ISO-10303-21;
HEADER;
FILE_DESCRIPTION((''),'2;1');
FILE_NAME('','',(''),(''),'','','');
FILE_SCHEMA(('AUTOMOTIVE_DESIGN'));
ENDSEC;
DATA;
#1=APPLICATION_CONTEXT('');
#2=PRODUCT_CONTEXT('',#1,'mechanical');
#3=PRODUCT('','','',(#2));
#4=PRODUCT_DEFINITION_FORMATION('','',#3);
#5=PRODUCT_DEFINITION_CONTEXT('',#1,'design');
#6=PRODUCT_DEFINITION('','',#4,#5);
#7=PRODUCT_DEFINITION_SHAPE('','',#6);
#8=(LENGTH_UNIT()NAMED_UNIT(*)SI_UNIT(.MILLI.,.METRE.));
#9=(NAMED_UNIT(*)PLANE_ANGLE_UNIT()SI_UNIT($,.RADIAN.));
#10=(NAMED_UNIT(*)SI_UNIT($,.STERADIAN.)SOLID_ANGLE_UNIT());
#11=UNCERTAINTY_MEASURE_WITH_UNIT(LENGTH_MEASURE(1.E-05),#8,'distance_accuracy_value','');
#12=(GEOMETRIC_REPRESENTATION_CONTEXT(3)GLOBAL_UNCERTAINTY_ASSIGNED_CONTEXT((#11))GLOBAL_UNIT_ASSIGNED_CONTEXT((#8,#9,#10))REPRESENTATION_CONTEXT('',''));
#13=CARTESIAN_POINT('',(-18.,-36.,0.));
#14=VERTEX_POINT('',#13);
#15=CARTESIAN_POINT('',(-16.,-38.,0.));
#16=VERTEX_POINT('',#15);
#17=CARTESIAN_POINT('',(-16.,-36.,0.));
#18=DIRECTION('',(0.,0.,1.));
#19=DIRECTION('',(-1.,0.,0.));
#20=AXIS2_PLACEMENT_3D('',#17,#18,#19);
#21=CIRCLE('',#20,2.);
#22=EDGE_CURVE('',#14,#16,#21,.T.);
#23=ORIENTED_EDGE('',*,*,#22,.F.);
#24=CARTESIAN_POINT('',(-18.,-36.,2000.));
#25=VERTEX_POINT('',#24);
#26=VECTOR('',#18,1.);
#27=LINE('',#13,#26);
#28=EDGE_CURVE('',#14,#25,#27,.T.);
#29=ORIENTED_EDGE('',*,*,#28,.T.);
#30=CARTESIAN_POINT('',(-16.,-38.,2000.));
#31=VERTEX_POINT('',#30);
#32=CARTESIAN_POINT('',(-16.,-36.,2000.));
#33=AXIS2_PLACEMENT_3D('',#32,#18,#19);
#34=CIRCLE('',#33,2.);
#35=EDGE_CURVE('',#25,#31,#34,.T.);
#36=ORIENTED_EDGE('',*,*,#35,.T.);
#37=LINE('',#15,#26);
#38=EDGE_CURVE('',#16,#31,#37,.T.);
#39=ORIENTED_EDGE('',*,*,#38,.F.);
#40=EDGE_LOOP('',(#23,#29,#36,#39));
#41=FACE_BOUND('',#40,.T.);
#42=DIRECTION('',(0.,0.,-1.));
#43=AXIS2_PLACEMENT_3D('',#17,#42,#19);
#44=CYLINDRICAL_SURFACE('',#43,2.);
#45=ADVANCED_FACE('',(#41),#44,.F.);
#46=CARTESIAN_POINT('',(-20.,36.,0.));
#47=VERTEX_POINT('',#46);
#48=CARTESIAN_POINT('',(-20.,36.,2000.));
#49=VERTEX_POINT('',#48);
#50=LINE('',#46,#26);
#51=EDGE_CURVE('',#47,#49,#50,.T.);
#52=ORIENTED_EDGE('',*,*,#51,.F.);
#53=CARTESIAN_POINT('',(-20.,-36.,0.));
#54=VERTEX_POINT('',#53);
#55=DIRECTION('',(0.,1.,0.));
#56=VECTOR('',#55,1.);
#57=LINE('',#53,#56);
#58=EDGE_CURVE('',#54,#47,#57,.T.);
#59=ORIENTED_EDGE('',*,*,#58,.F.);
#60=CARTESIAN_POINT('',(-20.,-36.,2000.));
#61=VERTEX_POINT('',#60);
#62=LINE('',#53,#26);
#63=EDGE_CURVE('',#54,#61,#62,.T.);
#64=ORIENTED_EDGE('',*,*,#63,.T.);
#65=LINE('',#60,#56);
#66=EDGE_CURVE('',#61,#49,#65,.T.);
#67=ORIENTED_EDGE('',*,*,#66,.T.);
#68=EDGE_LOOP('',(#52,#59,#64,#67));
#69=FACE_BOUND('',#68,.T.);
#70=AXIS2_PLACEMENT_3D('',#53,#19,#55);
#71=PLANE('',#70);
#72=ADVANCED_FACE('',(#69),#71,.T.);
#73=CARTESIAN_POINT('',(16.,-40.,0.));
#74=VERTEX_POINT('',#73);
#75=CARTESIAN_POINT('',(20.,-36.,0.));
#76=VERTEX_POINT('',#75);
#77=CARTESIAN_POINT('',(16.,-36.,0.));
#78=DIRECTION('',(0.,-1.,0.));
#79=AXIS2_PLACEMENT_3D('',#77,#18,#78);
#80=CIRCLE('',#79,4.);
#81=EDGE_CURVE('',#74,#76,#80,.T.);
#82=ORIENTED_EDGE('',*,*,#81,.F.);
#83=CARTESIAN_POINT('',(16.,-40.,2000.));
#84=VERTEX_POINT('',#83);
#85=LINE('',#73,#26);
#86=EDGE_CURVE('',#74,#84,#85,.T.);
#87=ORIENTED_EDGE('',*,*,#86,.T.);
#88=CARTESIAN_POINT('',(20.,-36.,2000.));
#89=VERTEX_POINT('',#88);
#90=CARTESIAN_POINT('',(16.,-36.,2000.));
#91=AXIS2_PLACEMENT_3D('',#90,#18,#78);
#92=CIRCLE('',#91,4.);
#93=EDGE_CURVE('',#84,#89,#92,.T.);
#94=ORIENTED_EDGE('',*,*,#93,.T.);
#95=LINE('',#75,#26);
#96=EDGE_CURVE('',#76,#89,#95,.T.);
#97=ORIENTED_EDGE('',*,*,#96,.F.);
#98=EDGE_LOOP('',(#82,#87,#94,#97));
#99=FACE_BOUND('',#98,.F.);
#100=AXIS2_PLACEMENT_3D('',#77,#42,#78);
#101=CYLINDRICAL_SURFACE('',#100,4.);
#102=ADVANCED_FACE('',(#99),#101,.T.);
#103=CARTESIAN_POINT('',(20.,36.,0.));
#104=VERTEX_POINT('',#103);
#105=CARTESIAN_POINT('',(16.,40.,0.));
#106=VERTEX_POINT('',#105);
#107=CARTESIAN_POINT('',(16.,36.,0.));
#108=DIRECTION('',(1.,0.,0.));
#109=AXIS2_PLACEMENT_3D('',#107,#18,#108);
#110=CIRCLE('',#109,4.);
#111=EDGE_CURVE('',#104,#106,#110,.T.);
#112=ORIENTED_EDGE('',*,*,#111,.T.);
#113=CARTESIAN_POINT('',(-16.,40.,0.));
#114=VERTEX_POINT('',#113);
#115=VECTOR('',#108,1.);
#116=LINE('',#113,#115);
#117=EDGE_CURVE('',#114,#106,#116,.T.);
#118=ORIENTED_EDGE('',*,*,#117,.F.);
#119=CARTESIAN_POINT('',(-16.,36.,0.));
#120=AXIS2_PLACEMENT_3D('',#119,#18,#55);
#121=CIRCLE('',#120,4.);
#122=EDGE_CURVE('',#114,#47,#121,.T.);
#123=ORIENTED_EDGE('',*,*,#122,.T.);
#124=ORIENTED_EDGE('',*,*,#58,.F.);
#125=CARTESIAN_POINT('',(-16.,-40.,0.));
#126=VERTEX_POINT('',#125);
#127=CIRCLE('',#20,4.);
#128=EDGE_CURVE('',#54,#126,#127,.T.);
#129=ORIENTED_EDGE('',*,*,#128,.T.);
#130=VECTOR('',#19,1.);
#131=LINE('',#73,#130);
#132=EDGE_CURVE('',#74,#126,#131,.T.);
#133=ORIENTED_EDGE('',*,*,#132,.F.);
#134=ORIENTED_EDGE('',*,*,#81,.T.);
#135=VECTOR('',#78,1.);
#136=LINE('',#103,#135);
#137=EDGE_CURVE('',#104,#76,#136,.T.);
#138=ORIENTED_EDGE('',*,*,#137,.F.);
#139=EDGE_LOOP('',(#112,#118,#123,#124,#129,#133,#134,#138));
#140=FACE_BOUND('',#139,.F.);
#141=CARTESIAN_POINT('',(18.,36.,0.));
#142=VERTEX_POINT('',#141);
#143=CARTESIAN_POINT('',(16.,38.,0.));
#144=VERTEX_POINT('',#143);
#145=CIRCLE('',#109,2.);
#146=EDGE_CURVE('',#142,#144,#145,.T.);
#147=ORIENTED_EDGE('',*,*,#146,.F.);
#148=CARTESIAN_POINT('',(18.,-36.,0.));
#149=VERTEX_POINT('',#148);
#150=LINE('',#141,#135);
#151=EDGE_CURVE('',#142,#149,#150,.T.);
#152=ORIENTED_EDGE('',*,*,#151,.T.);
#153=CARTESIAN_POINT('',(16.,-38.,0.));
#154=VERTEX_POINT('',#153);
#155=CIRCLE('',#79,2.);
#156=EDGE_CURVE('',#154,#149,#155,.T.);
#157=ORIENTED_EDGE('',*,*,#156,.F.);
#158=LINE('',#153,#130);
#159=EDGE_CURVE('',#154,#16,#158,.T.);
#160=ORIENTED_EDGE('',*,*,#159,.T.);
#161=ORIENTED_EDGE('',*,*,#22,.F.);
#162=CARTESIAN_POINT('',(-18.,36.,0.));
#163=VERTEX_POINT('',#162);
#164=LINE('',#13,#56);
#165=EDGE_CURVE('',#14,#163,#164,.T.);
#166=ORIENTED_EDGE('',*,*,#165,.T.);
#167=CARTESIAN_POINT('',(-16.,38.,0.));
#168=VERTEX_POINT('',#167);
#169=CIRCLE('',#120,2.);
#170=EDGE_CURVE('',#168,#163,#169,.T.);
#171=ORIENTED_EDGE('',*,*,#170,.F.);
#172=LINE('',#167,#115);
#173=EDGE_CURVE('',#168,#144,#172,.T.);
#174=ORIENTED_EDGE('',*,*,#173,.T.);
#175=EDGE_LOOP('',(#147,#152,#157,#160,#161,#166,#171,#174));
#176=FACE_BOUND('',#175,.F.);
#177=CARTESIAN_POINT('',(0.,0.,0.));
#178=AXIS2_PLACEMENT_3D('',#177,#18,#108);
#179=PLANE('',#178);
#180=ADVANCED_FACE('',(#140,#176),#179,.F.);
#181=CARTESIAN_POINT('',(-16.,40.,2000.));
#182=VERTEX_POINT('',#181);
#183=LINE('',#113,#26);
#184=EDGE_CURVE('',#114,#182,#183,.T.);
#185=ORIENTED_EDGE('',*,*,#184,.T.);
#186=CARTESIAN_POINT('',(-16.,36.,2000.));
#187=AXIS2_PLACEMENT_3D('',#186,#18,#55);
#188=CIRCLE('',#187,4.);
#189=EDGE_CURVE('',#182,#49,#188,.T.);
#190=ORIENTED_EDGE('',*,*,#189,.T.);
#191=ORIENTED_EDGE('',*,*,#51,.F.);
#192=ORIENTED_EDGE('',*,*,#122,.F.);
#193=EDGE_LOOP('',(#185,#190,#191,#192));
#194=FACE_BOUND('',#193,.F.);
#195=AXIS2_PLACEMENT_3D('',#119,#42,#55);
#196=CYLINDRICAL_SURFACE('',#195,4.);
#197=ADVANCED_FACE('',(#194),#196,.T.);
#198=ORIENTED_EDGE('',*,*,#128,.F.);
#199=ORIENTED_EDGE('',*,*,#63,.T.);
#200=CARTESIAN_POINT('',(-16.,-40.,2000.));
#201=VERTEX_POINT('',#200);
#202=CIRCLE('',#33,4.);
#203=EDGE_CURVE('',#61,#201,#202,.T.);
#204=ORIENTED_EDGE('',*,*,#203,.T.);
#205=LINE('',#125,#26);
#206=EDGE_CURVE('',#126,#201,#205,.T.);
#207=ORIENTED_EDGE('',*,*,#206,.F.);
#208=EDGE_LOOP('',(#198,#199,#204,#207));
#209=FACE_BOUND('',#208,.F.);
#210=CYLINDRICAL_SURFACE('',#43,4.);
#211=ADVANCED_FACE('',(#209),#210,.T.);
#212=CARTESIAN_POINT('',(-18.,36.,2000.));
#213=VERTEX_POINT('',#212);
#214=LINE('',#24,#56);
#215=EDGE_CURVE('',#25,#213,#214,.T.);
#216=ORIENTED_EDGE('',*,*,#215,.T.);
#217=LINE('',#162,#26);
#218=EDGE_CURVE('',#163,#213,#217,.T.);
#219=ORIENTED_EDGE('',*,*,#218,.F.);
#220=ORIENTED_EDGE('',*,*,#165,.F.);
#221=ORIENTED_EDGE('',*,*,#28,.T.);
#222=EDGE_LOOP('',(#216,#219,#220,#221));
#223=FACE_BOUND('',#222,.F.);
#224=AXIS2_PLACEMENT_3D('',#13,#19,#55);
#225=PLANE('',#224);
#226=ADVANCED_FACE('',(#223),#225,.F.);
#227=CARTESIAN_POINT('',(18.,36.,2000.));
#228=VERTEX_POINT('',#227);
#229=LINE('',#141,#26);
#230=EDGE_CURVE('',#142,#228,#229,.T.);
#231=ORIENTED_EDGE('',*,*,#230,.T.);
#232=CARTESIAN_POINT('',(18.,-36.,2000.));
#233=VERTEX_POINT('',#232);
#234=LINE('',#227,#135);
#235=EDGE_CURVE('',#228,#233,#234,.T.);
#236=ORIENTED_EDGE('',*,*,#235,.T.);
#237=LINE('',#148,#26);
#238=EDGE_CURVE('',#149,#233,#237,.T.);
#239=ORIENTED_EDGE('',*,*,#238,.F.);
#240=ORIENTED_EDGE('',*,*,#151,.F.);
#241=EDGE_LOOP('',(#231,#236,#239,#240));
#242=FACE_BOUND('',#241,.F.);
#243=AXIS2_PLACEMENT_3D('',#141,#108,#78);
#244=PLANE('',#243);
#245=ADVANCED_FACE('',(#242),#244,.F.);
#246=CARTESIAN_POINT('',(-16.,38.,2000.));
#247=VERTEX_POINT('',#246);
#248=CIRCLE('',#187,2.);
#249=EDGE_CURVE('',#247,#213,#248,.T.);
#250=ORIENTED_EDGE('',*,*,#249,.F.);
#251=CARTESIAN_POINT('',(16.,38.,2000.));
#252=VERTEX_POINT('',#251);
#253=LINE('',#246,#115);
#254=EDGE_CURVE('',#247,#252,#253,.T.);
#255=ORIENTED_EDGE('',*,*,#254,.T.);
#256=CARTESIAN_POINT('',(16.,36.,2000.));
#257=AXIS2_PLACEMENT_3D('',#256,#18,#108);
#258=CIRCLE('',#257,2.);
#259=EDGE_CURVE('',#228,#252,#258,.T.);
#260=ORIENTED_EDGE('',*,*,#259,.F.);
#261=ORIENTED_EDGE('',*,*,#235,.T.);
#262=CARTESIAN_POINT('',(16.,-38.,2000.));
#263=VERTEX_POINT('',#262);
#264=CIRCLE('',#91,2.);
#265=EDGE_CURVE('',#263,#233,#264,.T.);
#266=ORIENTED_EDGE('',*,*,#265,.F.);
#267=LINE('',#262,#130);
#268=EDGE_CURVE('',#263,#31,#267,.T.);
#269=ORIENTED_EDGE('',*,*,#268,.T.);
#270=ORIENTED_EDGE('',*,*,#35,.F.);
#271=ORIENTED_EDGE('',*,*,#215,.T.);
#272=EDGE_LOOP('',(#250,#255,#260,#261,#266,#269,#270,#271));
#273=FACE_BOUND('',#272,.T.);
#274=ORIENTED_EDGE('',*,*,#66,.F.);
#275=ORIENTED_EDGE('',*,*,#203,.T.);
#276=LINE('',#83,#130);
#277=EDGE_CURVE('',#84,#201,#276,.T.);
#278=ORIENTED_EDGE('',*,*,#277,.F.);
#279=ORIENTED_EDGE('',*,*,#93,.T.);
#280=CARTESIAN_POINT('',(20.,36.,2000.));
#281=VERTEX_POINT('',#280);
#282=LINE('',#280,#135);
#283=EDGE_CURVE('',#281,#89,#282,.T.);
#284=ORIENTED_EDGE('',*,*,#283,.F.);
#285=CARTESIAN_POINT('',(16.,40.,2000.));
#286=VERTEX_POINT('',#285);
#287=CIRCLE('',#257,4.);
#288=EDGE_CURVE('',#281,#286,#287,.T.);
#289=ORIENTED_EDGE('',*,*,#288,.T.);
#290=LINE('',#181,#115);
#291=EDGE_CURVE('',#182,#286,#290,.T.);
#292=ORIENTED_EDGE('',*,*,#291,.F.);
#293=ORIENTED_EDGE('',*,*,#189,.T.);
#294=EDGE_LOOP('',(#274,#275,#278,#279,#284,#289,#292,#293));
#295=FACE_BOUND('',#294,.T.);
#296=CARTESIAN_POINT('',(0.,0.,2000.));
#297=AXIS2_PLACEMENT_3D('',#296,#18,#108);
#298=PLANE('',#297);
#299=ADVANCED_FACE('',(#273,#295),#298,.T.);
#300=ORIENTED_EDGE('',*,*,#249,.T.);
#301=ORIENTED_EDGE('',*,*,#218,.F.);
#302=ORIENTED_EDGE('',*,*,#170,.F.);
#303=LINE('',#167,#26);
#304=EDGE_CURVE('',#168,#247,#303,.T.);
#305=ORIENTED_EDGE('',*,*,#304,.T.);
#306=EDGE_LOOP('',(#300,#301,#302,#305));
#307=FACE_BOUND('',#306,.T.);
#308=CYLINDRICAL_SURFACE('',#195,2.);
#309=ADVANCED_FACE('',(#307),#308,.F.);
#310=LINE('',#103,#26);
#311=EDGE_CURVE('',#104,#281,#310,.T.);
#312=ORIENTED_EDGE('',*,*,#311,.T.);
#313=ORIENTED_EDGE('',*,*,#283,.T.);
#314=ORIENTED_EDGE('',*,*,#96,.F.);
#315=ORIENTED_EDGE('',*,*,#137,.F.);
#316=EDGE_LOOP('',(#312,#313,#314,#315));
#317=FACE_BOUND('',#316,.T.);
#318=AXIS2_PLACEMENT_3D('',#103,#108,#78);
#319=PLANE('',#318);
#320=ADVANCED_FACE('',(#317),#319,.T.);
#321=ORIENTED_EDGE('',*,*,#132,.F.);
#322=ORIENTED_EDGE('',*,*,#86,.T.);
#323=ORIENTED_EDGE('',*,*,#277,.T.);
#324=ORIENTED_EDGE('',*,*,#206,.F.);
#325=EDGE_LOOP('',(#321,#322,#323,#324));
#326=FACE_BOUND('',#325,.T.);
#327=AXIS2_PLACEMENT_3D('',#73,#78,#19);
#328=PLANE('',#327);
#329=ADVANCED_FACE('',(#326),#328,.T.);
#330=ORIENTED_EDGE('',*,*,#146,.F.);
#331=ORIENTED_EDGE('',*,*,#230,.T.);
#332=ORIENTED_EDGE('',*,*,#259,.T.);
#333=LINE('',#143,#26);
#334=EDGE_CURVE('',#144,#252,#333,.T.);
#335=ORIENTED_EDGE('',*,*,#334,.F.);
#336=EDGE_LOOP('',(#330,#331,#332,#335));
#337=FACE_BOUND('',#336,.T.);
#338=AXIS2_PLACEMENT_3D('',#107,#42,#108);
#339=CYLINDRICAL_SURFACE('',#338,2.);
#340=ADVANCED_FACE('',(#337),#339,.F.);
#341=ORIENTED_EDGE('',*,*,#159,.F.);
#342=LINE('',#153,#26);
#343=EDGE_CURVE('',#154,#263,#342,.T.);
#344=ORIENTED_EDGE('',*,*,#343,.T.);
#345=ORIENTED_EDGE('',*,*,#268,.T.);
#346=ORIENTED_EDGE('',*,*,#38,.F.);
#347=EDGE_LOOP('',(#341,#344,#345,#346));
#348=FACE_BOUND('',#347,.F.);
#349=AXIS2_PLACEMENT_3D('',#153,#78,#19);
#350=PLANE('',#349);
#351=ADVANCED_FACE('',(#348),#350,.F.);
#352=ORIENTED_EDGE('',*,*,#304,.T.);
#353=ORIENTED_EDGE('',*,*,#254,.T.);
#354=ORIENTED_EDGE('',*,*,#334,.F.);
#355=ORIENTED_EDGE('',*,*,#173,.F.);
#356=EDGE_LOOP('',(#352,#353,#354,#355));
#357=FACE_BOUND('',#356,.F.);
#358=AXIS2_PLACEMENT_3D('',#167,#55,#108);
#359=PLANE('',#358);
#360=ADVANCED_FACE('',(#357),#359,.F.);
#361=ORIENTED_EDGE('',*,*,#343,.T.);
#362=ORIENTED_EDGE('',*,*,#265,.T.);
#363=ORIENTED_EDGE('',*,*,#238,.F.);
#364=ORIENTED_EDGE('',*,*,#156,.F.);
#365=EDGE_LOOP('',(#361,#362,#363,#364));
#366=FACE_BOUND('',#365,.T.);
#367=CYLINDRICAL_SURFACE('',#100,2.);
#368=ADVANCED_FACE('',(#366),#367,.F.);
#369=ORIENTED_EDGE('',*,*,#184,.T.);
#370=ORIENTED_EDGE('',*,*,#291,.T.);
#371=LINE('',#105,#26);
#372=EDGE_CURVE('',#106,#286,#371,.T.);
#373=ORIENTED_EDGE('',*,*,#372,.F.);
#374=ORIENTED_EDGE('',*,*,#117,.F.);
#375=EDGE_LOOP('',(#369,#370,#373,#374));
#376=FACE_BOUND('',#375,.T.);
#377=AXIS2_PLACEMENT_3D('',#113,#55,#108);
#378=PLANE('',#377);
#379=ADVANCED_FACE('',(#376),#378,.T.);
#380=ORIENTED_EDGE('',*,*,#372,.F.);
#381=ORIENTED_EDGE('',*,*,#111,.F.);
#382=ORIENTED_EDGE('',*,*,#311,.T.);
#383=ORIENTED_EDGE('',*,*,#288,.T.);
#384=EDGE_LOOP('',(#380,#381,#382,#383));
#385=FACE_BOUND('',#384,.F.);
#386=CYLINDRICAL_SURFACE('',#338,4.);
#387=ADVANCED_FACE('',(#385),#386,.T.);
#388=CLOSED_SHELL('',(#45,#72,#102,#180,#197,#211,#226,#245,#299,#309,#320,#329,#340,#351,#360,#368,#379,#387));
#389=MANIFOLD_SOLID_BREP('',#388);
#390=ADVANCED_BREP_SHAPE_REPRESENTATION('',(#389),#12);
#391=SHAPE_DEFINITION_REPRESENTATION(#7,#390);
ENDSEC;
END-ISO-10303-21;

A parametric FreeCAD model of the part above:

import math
import FreeCAD as App
import Part
import Sketcher
from FreeCAD import Vector
Q = App.Units.Quantity

doc = App.newDocument("Part")
params = doc.addObject("Spreadsheet::Sheet", "Params")
for row, (alias, value) in enumerate([
    ("sketch1_radius", "4 mm"),
    ("sketch1_radius2", "2 mm"),
    ("pad1_length", "2000 mm"),
], start=1):
    params.set(f"A{row}", alias)
    params.set(f"B{row}", "=" + value)
    params.setAlias(f"B{row}", alias)

body = doc.addObject("PartDesign::Body", "Body")

# Sketch on XY plane
sketch1 = body.newObject("Sketcher::SketchObject", "Sketch")
sketch1.AttachmentSupport = (doc.getObject("XY_Plane"), [""])
sketch1.MapMode = "FlatFace"
sketch1.addGeometry([
    Part.LineSegment(Vector(-20, 36, 0), Vector(-20, -36, 0)),  # 0
    Part.ArcOfCircle(Part.Circle(Vector(-16, -36, 0), Vector(0, 0, 1), 4), math.radians(180), math.radians(270)),  # 1
    Part.LineSegment(Vector(-16, -40, 0), Vector(16, -40, 0)),  # 2
    Part.ArcOfCircle(Part.Circle(Vector(16, -36, 0), Vector(0, 0, 1), 4), math.radians(-90), math.radians(0)),  # 3
    Part.LineSegment(Vector(20, -36, 0), Vector(20, 36, 0)),  # 4
    Part.ArcOfCircle(Part.Circle(Vector(16, 36, 0), Vector(0, 0, 1), 4), math.radians(0), math.radians(90)),  # 5
    Part.LineSegment(Vector(16, 40, 0), Vector(-16, 40, 0)),  # 6
    Part.ArcOfCircle(Part.Circle(Vector(-16, 36, 0), Vector(0, 0, 1), 4), math.radians(90), math.radians(180)),  # 7
    Part.ArcOfCircle(Part.Circle(Vector(-16, 36, 0), Vector(0, 0, 1), 2), math.radians(90), math.radians(180)),  # 8
    Part.LineSegment(Vector(-16, 38, 0), Vector(16, 38, 0)),  # 9
    Part.ArcOfCircle(Part.Circle(Vector(16, 36, 0), Vector(0, 0, 1), 2), math.radians(0), math.radians(90)),  # 10
    Part.LineSegment(Vector(18, 36, 0), Vector(18, -36, 0)),  # 11
    Part.ArcOfCircle(Part.Circle(Vector(16, -36, 0), Vector(0, 0, 1), 2), math.radians(-90), math.radians(0)),  # 12
    Part.LineSegment(Vector(16, -38, 0), Vector(-16, -38, 0)),  # 13
    Part.ArcOfCircle(Part.Circle(Vector(-16, -36, 0), Vector(0, 0, 1), 2), math.radians(180), math.radians(270)),  # 14
    Part.LineSegment(Vector(-18, -36, 0), Vector(-18, 36, 0)),  # 15
], False)
sketch1.addConstraint([
    Sketcher.Constraint("Tangent", 0, 2, 1, 1),
    Sketcher.Constraint("Tangent", 1, 2, 2, 1),
    Sketcher.Constraint("Tangent", 2, 2, 3, 1),
    Sketcher.Constraint("Tangent", 3, 2, 4, 1),
    Sketcher.Constraint("Tangent", 4, 2, 5, 1),
    Sketcher.Constraint("Tangent", 5, 2, 6, 1),
    Sketcher.Constraint("Tangent", 6, 2, 7, 1),
    Sketcher.Constraint("Tangent", 7, 2, 0, 1),
    Sketcher.Constraint("Tangent", 8, 1, 9, 1),
    Sketcher.Constraint("Tangent", 9, 2, 10, 2),
    Sketcher.Constraint("Tangent", 10, 1, 11, 1),
    Sketcher.Constraint("Tangent", 11, 2, 12, 2),
    Sketcher.Constraint("Tangent", 12, 1, 13, 1),
    Sketcher.Constraint("Tangent", 13, 2, 14, 2),
    Sketcher.Constraint("Tangent", 14, 1, 15, 1),
    Sketcher.Constraint("Tangent", 15, 2, 8, 2),
    Sketcher.Constraint("Vertical", 0),
    Sketcher.Constraint("Horizontal", 2),
    Sketcher.Constraint("Vertical", 4),
    Sketcher.Constraint("Horizontal", 6),
    Sketcher.Constraint("Horizontal", 9),
    Sketcher.Constraint("Vertical", 11),
    Sketcher.Constraint("Horizontal", 13),
    Sketcher.Constraint("Vertical", 15),
    Sketcher.Constraint("Coincident", 8, 3, 7, 3),
    Sketcher.Constraint("Coincident", 10, 3, 5, 3),
    Sketcher.Constraint("Coincident", 12, 3, 3, 3),
    Sketcher.Constraint("Equal", 1, 3),
    Sketcher.Constraint("Equal", 3, 5),
    Sketcher.Constraint("Equal", 5, 7),
    Sketcher.Constraint("Equal", 12, 14),
    Sketcher.Constraint("Symmetric", 1, 3, 5, 3, -1, 1),
    Sketcher.Constraint("Radius", 1, Q("4 mm")),
    Sketcher.Constraint("Radius", 8, Q("2 mm")),
    Sketcher.Constraint("DistanceX", 0, 2, -1, 1, Q("20 mm")),
    Sketcher.Constraint("DistanceY", 1, 2, -1, 1, Q("40 mm")),
])
sketch1.setExpression("Constraints[32]", "Params.sketch1_radius")
sketch1.setExpression("Constraints[33]", "Params.sketch1_radius2")
pad1 = body.newObject("PartDesign::Pad", "Pad")
pad1.Profile = sketch1
pad1.setExpression("Length", "Params.pad1_length")

doc.recompute()
